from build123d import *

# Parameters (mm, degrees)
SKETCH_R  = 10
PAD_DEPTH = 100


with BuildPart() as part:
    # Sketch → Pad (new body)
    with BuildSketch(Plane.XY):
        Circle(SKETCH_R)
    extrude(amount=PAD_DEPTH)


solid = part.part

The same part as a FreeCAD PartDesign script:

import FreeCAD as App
import Part
import Sketcher
from FreeCAD import Vector
Q = App.Units.Quantity

doc = App.newDocument("Part")
params = doc.addObject("Spreadsheet::Sheet", "Params")
for row, (alias, value) in enumerate([
    ("sketch1_diameter", "20 mm"),
    ("pad1_length", "100 mm"),
], start=1):
    params.set(f"A{row}", alias)
    params.set(f"B{row}", "=" + value)
    params.setAlias(f"B{row}", alias)

body = doc.addObject("PartDesign::Body", "Body")

# Sketch on XY plane
sketch1 = doc.addObject("Sketcher::SketchObject", "Sketch")
body.addObject(sketch1)
sketch1.AttachmentSupport = (doc.XY_Plane, [""])
sketch1.MapMode = "FlatFace"
sketch1.addGeometry(Part.Circle(Vector(0, 0, 0), Vector(0, 0, 1), 10), False)
sketch1.addConstraint(Sketcher.Constraint("Coincident", 0, 3, -1, 1))
sketch1.addConstraint(Sketcher.Constraint("Diameter", 0, Q("20 mm")))
sketch1.setExpression("Constraints[1]", "Params.sketch1_diameter")
pad1 = doc.addObject("PartDesign::Pad", "Pad")
body.addObject(pad1)
pad1.Profile = sketch1
pad1.setExpression("Length", "Params.pad1_length")

doc.recompute()
